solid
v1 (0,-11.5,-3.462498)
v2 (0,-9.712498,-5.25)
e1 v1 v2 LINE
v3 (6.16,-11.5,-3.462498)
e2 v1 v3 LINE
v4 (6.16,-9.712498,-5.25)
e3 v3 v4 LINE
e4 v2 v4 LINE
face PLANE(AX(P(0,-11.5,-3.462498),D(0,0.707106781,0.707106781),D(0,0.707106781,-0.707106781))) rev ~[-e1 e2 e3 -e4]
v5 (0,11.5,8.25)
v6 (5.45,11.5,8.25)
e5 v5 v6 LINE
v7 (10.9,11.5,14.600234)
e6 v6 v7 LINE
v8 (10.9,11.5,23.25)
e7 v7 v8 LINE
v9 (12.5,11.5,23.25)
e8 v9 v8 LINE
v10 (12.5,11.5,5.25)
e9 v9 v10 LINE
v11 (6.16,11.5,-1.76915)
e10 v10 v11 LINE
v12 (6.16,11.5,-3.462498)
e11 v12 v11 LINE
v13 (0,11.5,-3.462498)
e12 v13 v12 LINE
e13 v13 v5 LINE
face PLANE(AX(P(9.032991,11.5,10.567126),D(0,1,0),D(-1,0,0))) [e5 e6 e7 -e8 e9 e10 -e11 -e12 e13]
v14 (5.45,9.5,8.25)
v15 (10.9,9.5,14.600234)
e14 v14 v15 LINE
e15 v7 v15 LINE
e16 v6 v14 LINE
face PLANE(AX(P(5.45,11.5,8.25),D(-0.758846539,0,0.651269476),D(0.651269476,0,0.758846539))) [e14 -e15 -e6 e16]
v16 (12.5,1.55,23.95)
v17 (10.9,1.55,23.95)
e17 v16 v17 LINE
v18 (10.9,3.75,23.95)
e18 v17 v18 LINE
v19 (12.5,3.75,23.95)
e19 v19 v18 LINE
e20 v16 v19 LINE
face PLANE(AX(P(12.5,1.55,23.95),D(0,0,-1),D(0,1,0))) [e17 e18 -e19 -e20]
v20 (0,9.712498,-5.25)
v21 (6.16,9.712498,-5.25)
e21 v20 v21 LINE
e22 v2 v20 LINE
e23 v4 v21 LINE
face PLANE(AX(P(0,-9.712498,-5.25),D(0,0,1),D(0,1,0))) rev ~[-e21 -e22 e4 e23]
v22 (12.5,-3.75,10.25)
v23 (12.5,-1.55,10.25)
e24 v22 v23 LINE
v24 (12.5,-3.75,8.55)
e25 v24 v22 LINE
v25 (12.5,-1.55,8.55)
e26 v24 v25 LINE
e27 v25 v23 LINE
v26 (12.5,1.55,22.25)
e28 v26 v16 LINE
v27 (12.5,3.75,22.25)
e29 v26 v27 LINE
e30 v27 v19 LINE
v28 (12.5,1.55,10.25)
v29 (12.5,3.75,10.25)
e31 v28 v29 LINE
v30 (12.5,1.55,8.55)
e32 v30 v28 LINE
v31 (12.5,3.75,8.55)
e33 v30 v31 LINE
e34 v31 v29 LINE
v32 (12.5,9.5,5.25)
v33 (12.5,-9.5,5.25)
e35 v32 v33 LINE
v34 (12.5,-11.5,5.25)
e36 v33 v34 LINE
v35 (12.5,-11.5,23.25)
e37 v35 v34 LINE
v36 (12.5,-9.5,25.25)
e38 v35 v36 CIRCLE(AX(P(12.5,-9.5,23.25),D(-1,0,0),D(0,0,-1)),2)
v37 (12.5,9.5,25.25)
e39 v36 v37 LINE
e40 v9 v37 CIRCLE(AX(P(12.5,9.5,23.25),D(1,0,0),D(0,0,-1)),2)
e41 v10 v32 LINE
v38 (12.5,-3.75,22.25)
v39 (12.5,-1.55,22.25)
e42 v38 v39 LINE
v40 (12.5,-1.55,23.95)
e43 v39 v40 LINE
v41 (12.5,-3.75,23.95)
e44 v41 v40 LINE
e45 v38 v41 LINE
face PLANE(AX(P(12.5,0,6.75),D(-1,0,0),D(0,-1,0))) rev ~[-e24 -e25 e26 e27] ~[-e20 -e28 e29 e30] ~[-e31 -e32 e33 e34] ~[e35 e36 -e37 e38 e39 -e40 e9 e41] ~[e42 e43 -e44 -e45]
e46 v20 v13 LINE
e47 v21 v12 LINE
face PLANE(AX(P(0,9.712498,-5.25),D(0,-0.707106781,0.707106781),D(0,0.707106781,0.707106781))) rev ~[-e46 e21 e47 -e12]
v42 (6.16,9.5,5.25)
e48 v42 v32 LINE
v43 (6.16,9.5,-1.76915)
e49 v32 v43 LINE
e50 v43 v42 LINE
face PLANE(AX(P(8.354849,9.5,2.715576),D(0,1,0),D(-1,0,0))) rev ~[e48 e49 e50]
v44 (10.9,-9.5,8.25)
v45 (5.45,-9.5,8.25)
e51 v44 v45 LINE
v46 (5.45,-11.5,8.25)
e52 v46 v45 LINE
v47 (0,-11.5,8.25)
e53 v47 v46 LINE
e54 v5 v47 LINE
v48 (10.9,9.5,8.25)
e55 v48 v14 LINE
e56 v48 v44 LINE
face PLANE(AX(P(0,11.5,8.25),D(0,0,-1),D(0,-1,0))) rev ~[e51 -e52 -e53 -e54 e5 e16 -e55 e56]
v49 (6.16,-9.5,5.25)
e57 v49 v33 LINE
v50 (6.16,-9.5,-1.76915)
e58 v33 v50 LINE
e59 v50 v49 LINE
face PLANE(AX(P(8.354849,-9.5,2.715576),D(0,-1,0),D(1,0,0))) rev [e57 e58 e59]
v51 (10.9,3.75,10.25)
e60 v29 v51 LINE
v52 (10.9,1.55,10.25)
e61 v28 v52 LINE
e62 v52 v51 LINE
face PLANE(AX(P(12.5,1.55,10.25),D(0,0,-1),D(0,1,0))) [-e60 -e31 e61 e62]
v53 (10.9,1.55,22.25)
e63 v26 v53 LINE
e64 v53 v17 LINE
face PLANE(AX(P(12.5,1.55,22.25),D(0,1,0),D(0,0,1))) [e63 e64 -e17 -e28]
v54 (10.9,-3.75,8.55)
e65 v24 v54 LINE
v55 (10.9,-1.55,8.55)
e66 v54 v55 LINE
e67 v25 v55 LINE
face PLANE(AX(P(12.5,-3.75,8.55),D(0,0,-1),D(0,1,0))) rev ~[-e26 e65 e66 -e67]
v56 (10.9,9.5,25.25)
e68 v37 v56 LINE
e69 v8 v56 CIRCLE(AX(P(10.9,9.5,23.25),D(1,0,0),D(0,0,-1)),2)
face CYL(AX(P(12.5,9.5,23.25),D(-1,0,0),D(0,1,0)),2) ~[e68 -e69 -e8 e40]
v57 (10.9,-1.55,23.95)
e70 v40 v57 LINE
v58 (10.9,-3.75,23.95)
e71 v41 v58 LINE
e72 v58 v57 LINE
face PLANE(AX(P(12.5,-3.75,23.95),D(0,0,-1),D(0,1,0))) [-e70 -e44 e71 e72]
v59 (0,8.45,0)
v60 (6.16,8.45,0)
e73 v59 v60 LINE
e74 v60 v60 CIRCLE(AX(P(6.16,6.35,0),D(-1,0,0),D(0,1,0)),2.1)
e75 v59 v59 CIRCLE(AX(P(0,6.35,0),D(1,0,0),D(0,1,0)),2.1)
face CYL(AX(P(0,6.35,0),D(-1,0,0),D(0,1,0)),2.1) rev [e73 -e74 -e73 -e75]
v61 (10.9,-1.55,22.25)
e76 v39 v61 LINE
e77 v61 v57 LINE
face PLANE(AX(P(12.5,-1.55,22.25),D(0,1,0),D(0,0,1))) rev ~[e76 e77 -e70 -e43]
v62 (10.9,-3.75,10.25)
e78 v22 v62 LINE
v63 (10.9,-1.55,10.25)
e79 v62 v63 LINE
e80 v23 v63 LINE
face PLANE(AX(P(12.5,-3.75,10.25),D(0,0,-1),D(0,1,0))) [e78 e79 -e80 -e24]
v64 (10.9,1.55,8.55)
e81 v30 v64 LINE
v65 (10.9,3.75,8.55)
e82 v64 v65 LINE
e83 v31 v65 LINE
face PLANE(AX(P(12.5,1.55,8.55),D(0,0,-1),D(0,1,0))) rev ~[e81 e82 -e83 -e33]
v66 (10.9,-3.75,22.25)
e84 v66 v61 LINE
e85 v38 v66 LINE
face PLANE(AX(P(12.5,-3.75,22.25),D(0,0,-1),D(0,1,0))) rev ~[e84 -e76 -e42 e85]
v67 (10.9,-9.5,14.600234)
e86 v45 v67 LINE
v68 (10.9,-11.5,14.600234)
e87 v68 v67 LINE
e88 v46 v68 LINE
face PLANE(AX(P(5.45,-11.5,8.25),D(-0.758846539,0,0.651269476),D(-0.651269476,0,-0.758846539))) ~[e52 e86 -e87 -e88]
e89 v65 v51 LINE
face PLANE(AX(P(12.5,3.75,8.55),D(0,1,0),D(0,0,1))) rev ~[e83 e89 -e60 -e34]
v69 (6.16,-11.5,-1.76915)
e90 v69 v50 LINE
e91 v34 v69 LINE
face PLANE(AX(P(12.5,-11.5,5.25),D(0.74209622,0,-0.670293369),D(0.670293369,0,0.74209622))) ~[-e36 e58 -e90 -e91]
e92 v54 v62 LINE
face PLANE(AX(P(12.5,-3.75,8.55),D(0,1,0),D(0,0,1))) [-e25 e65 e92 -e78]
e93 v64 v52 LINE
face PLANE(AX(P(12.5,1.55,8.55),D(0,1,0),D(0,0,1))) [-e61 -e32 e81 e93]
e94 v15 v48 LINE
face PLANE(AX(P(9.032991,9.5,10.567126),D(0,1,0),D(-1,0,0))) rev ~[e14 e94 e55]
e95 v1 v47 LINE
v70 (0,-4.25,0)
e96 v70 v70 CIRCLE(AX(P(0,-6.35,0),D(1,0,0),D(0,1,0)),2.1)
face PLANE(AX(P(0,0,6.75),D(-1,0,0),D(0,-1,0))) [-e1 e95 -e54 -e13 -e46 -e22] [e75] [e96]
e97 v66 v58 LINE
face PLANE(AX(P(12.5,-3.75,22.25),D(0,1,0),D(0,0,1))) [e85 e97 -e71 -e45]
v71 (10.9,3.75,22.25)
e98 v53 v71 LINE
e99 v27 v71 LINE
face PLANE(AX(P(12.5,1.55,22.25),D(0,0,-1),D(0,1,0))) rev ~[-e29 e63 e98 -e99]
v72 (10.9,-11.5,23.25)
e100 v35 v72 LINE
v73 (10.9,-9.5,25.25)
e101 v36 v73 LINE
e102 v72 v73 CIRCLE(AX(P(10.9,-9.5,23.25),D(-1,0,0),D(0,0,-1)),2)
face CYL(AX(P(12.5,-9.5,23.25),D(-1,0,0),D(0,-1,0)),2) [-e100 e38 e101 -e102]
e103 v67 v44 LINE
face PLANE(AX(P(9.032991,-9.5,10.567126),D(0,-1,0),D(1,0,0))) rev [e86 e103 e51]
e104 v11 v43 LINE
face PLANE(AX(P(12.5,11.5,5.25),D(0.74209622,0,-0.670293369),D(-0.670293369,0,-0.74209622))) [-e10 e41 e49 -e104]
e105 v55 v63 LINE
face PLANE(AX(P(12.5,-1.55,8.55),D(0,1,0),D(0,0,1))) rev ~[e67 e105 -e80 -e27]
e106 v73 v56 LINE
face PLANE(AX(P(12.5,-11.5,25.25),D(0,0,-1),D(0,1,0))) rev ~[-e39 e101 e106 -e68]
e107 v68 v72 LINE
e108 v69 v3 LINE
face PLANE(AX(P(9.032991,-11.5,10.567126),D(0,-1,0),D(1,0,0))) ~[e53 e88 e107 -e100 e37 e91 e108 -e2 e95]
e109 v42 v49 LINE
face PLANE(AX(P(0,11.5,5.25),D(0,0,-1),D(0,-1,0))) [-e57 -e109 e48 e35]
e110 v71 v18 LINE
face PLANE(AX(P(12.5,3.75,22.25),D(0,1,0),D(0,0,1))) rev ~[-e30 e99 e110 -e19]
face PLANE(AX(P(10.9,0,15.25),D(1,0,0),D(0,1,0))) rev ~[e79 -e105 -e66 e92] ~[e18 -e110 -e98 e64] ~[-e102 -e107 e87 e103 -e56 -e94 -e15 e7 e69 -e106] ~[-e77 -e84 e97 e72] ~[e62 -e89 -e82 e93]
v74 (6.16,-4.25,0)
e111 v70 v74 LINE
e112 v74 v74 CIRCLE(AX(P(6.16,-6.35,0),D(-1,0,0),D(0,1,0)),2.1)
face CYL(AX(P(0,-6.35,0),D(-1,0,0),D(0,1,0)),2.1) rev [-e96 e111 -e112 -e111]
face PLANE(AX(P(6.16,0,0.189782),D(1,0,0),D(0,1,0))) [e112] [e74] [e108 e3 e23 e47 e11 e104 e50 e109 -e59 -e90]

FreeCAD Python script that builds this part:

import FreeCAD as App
import Part
import Sketcher


def edges_at(feature, points):
    """Names of the edges that pass closest to the given points."""
    edges = feature.Shape.Edges
    near = lambda p: min(range(len(edges)), key=lambda i: edges[i].distToShape(Part.Vertex(*p))[0])
    return sorted({f"Edge{near(p) + 1}" for p in points})


def add_polygon(sketch, points):
    """Adds a closed chain of lines whose ends are joined by coincident constraints."""
    first, n = sketch.GeometryCount, len(points)
    for a, b in zip(points, points[1:] + points[:1]):
        sketch.addGeometry(Part.LineSegment(App.Vector(*a, 0), App.Vector(*b, 0)), False)
    for i in range(n):
        sketch.addConstraint(Sketcher.Constraint("Coincident", first + i, 2, first + (i + 1) % n, 1))

doc = App.newDocument("Part")
body = doc.addObject("PartDesign::Body", "Body")

# Sketch on YZ plane
sketch1 = doc.addObject("Sketcher::SketchObject", "Sketch")
body.addObject(sketch1)
sketch1.AttachmentSupport = (doc.YZ_Plane, [""])
sketch1.MapMode = "FlatFace"
add_polygon(sketch1, [(-9.712498, -5.25), (9.712498, -5.25), (11.5, -3.462498), (11.5, 5.25), (-11.5, 5.25), (-11.5, -3.462498)])  # lines 0-5
sketch1.addGeometry(Part.Circle(App.Vector(-6.35, 0, 0), App.Vector(0, 0, 1), 2.1), False)  # 6
sketch1.addGeometry(Part.Circle(App.Vector(6.35, 0, 0), App.Vector(0, 0, 1), 2.1), False)  # 7
sketch1.addConstraint([
    Sketcher.Constraint("Horizontal", 0),
    Sketcher.Constraint("Vertical", 2),
    Sketcher.Constraint("Horizontal", 3),
    Sketcher.Constraint("Vertical", 4),
    Sketcher.Constraint("Equal", 6, 7),
    Sketcher.Constraint("Symmetric", 6, 3, 7, 3, -1, 1),
    Sketcher.Constraint("Symmetric", 1, 2, 4, 2, -2),
    Sketcher.Constraint("PointOnObject", 6, 3, -1),
    Sketcher.Constraint("Perpendicular", 1, 5),
    Sketcher.Constraint("Equal", 1, 5),
    Sketcher.Constraint("Diameter", 6, 4.2),
    Sketcher.Constraint("DistanceX", 3, 2, 3, 1, 23.0),
    Sketcher.Constraint("DistanceX", 6, 3, 7, 3, 12.7),
    Sketcher.Constraint("DistanceY", 0, 2, 2, 2, 10.5),
    Sketcher.Constraint("DistanceY", 0, 2, -1, 1, 5.25),
    Sketcher.Constraint("Distance", 1, 2.52791),
])
pad1 = doc.addObject("PartDesign::Pad", "Pad")
body.addObject(pad1)
pad1.Profile = sketch1
pad1.Length = 6.16

# Sketch on YZ plane
sketch2 = doc.addObject("Sketcher::SketchObject", "Sketch001")
body.addObject(sketch2)
sketch2.AttachmentSupport = (doc.YZ_Plane, [""])
sketch2.MapMode = "FlatFace"
add_polygon(sketch2, [(11.5, 8.25), (11.5, 5.25), (-11.5, 5.25), (-11.5, 8.25)])  # lines 0-3
sketch2.addConstraint([
    Sketcher.Constraint("Vertical", 0),
    Sketcher.Constraint("Horizontal", 1),
    Sketcher.Constraint("Vertical", 2),
    Sketcher.Constraint("Horizontal", 3),
    Sketcher.Constraint("DistanceX", 1, 2, 1, 1, 23.0),
    Sketcher.Constraint("DistanceY", 0, 2, 0, 1, 3.0),
    Sketcher.Constraint("DistanceX", -1, 1, 0, 2, 11.5),
    Sketcher.Constraint("DistanceY", -1, 1, 0, 2, 5.25),
])
pad2 = doc.addObject("PartDesign::Pad", "Pad001")
body.addObject(pad2)
pad2.Profile = sketch2
pad2.Length = 12.5

# Sketch on YZ plane
sketch3 = doc.addObject("Sketcher::SketchObject", "Sketch002")
body.addObject(sketch3)
sketch3.AttachmentSupport = (doc.YZ_Plane, [""])
sketch3.MapMode = "FlatFace"
sketch3.AttachmentOffset = App.Placement(App.Vector(0, 0, 12.5), App.Rotation())
add_polygon(sketch3, [(-11.5, 25.25), (-11.5, 5.25), (11.5, 5.25), (11.5, 25.25)])  # lines 0-3
add_polygon(sketch3, [(-1.55, 8.55), (-3.75, 8.55), (-3.75, 10.25), (-1.55, 10.25)])  # lines 4-7
add_polygon(sketch3, [(3.75, 8.55), (1.55, 8.55), (1.55, 10.25), (3.75, 10.25)])  # lines 8-11
add_polygon(sketch3, [(-1.55, 22.25), (-3.75, 22.25), (-3.75, 23.95), (-1.55, 23.95)])  # lines 12-15
add_polygon(sketch3, [(3.75, 22.25), (1.55, 22.25), (1.55, 23.95), (3.75, 23.95)])  # lines 16-19
sketch3.addConstraint([
    Sketcher.Constraint("Vertical", 0),
    Sketcher.Constraint("Horizontal", 1),
    Sketcher.Constraint("Vertical", 2),
    Sketcher.Constraint("Horizontal", 3),
    Sketcher.Constraint("Horizontal", 4),
    Sketcher.Constraint("Vertical", 5),
    Sketcher.Constraint("Horizontal", 6),
    Sketcher.Constraint("Vertical", 7),
    Sketcher.Constraint("Horizontal", 8),
    Sketcher.Constraint("Vertical", 9),
    Sketcher.Constraint("Horizontal", 10),
    Sketcher.Constraint("Vertical", 11),
    Sketcher.Constraint("Horizontal", 12),
    Sketcher.Constraint("Vertical", 13),
    Sketcher.Constraint("Horizontal", 14),
    Sketcher.Constraint("Vertical", 15),
    Sketcher.Constraint("Horizontal", 16),
    Sketcher.Constraint("Vertical", 17),
    Sketcher.Constraint("Horizontal", 18),
    Sketcher.Constraint("Vertical", 19),
    Sketcher.Constraint("Symmetric", 7, 2, 8, 2, -2),
    Sketcher.Constraint("Symmetric", 5, 2, 10, 2, -2),
    Sketcher.Constraint("Symmetric", 15, 2, 16, 2, -2),
    Sketcher.Constraint("Symmetric", 13, 2, 18, 2, -2),
    Sketcher.Constraint("Vertical", 5, 2, 12, 2),
    Sketcher.Constraint("Vertical", 7, 2, 14, 2),
    Sketcher.Constraint("Equal", 11, 13),
    Sketcher.Constraint("DistanceX", 1, 1, 1, 2, 23.0),
    Sketcher.Constraint("DistanceY", 0, 2, 0, 1, 20.0),
    Sketcher.Constraint("DistanceX", 4, 2, 4, 1, 2.2),
    Sketcher.Constraint("DistanceY", 5, 1, 5, 2, 1.7),
    Sketcher.Constraint("DistanceY", 0, 2, 5, 2, 5.0),
    Sketcher.Constraint("DistanceY", 12, 2, 3, 2, 3.0),
    Sketcher.Constraint("DistanceX", 0, 2, -1, 1, 11.5),
    Sketcher.Constraint("DistanceX", 7, 2, 8, 2, 3.1),
    Sketcher.Constraint("DistanceY", -1, 1, 0, 2, 5.25),
])
pad3 = doc.addObject("PartDesign::Pad", "Pad002")
body.addObject(pad3)
pad3.Profile = sketch3
pad3.Length = 1.6
pad3.Reversed = True

# Sketch on XZ plane
sketch4 = doc.addObject("Sketcher::SketchObject", "Sketch003")
body.addObject(sketch4)
sketch4.AttachmentSupport = (doc.XZ_Plane, [""])
sketch4.MapMode = "FlatFace"
sketch4.AttachmentOffset = App.Placement(App.Vector(0, 0, -11.5), App.Rotation())
add_polygon(sketch4, [(5.45, 8.25), (10.9, 14.600234), (10.9, 8.25)])  # lines 0-2
add_polygon(sketch4, [(6.16, 5.25), (12.5, 5.25), (6.16, -1.76915)])  # lines 3-5
sketch4.addConstraint([
    Sketcher.Constraint("Vertical", 1),
    Sketcher.Constraint("Horizontal", 2),
    Sketcher.Constraint("Horizontal", 3),
    Sketcher.Constraint("Vertical", 5),
    Sketcher.Constraint("DistanceY", 3, 2, 1, 2, 3.0),
    Sketcher.Constraint("DistanceX", 2, 2, 2, 1, 5.45),
    Sketcher.Constraint("DistanceX", 3, 1, 3, 2, 6.34),
    Sketcher.Constraint("DistanceX", -1, 1, 0, 2, 10.9),
    Sketcher.Constraint("DistanceX", -1, 1, 3, 2, 12.5),
    Sketcher.Constraint("DistanceY", -1, 1, 1, 2, 8.25),
    Sketcher.Constraint("DistanceY", 5, 1, 5, 2, 7.01915),
    Sketcher.Constraint("Distance", 0, 8.368272),
])
pad4 = doc.addObject("PartDesign::Pad", "Pad003")
body.addObject(pad4)
pad4.Profile = sketch4
pad4.Length = 2
body2 = doc.addObject("PartDesign::Body", "Body001")
doc.recompute()

body2.BaseFeature = body
doc.recompute()

mirroring = doc.addObject("Part::Mirroring", "Mirroring")
mirroring.Source = body
mirroring.Base = App.Vector(0, 0, 0)
mirroring.Normal = App.Vector(0, -1, 0)
body3 = doc.addObject("PartDesign::Body", "Body002")
body3.BaseFeature = mirroring
boolean = doc.addObject("PartDesign::Boolean", "Boolean")
body2.addObject(boolean)
boolean.Type = "Fuse"
boolean.addObjects([body3])
doc.recompute()
body4 = doc.addObject("PartDesign::Body", "Body003")
doc.recompute()

body4.BaseFeature = body2
doc.recompute()

mirroring2 = doc.addObject("Part::Mirroring", "Mirroring001")
mirroring2.Source = body2
mirroring2.Base = App.Vector(0, 0, 0)
mirroring2.Normal = App.Vector(0, -1, 0)
body5 = doc.addObject("PartDesign::Body", "Body004")
body5.BaseFeature = mirroring2
boolean2 = doc.addObject("PartDesign::Boolean", "Boolean001")
body4.addObject(boolean2)
boolean2.Type = "Fuse"
boolean2.addObjects([body5])
doc.recompute()

fillet = doc.addObject("PartDesign::Fillet", "Fillet")
body4.addObject(fillet)
fillet.Base = (boolean2, edges_at(boolean2, [(11.7, 11.5, 25.25), (11.7, -11.5, 25.25)]))
fillet.Radius = 2
mirroring.Visibility = False
mirroring2.Visibility = False

doc.recompute()
